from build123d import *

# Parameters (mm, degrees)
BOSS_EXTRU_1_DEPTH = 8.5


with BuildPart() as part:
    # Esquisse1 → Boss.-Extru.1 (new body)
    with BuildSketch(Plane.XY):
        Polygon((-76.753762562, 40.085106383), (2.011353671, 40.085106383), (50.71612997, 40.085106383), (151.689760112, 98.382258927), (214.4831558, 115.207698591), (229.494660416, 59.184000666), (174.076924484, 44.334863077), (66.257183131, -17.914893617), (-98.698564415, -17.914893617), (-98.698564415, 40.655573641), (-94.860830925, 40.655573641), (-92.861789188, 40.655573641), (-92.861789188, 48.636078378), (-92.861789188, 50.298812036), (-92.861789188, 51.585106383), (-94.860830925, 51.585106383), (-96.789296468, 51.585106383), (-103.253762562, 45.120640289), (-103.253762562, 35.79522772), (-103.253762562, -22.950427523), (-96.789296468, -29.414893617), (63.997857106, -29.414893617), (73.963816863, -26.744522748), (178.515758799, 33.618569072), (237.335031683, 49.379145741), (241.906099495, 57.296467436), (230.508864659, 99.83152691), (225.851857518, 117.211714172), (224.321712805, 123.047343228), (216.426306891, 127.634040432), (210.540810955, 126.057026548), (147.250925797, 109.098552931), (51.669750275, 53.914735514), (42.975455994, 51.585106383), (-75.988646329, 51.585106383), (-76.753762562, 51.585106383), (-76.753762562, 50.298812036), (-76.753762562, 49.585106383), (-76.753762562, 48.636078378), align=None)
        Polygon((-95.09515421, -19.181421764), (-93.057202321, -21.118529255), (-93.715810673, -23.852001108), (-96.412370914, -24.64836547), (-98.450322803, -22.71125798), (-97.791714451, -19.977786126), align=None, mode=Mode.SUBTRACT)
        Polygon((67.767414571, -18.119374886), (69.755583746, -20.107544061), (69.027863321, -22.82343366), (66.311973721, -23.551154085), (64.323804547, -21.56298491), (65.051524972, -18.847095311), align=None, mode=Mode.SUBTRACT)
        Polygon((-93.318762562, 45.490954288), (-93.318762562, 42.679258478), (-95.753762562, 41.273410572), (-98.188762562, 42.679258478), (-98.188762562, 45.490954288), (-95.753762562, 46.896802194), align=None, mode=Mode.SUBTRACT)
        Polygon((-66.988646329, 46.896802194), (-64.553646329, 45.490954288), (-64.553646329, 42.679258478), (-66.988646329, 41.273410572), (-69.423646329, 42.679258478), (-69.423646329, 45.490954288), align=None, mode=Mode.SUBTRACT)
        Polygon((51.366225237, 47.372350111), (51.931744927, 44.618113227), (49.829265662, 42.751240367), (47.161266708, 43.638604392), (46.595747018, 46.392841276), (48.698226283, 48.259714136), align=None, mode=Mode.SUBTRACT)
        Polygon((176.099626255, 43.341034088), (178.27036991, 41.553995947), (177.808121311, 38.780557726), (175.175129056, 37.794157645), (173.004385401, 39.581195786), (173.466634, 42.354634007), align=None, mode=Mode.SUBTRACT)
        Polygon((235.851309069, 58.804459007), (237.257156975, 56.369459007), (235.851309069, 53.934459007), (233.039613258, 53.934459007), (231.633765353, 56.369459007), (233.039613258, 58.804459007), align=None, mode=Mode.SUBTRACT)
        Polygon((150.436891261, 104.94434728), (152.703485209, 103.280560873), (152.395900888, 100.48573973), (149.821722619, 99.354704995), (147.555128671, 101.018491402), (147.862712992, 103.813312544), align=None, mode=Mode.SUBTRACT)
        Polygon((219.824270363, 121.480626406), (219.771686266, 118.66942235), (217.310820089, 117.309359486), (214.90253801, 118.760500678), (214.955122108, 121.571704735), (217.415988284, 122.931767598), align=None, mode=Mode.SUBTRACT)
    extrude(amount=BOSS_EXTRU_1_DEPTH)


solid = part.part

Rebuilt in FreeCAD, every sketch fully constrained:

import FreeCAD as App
import Part
import Sketcher

V = App.Vector
Q = App.Units.Quantity

doc = App.newDocument("Part")
body = doc.addObject("PartDesign::Body", "Body")

# Sketch on XY plane
sketch1 = doc.addObject("Sketcher::SketchObject", "Sketch")
body.addObject(sketch1)
sketch1.AttachmentSupport = (doc.XY_Plane, [""])
sketch1.MapMode = "FlatFace"
sketch1.addGeometry([
    Part.LineSegment(V(-76.753763, 40.085106, 0), V(50.71613, 40.085106, 0)),  # 0
    Part.LineSegment(V(50.71613, 40.085106, 0), V(151.68976, 98.382259, 0)),  # 1
    Part.LineSegment(V(151.68976, 98.382259, 0), V(214.483156, 115.207699, 0)),  # 2
    Part.LineSegment(V(214.483156, 115.207699, 0), V(229.49466, 59.184001, 0)),  # 3
    Part.LineSegment(V(229.49466, 59.184001, 0), V(174.076924, 44.334863, 0)),  # 4
    Part.LineSegment(V(174.076924, 44.334863, 0), V(66.257183, -17.914894, 0)),  # 5
    Part.LineSegment(V(66.257183, -17.914894, 0), V(-98.698564, -17.914894, 0)),  # 6
    Part.LineSegment(V(-98.698564, -17.914894, 0), V(-98.698564, 40.655574, 0)),  # 7
    Part.LineSegment(V(-98.698564, 40.655574, 0), V(-92.861789, 40.655574, 0)),  # 8
    Part.LineSegment(V(-92.861789, 40.655574, 0), V(-92.861789, 51.585106, 0)),  # 9
    Part.LineSegment(V(-92.861789, 51.585106, 0), V(-96.789296, 51.585106, 0)),  # 10
    Part.LineSegment(V(-96.789296, 51.585106, 0), V(-103.253763, 45.12064, 0)),  # 11
    Part.LineSegment(V(-103.253763, 45.12064, 0), V(-103.253763, -22.950428, 0)),  # 12
    Part.LineSegment(V(-103.253763, -22.950428, 0), V(-96.789296, -29.414894, 0)),  # 13
    Part.LineSegment(V(-96.789296, -29.414894, 0), V(63.997857, -29.414894, 0)),  # 14
    Part.LineSegment(V(63.997857, -29.414894, 0), V(73.963817, -26.744523, 0)),  # 15
    Part.LineSegment(V(73.963817, -26.744523, 0), V(178.515759, 33.618569, 0)),  # 16
    Part.LineSegment(V(178.515759, 33.618569, 0), V(237.335032, 49.379146, 0)),  # 17
    Part.LineSegment(V(237.335032, 49.379146, 0), V(241.906099, 57.296467, 0)),  # 18
    Part.LineSegment(V(241.906099, 57.296467, 0), V(230.508865, 99.831527, 0)),  # 19
    Part.LineSegment(V(230.508865, 99.831527, 0), V(225.851858, 117.211714, 0)),  # 20
    Part.LineSegment(V(225.851858, 117.211714, 0), V(224.321713, 123.047343, 0)),  # 21
    Part.LineSegment(V(224.321713, 123.047343, 0), V(216.426307, 127.63404, 0)),  # 22
    Part.LineSegment(V(216.426307, 127.63404, 0), V(210.540811, 126.057027, 0)),  # 23
    Part.LineSegment(V(210.540811, 126.057027, 0), V(147.250926, 109.098553, 0)),  # 24
    Part.LineSegment(V(147.250926, 109.098553, 0), V(51.66975, 53.914736, 0)),  # 25
    Part.LineSegment(V(51.66975, 53.914736, 0), V(42.975456, 51.585106, 0)),  # 26
    Part.LineSegment(V(42.975456, 51.585106, 0), V(-76.753763, 51.585106, 0)),  # 27
    Part.LineSegment(V(-76.753763, 51.585106, 0), V(-76.753763, 40.085106, 0)),  # 28
    Part.LineSegment(V(-97.791714, -19.977786, 0), V(-95.095154, -19.181422, 0)),  # 29
    Part.LineSegment(V(-95.095154, -19.181422, 0), V(-93.057202, -21.118529, 0)),  # 30
    Part.LineSegment(V(-93.057202, -21.118529, 0), V(-93.715811, -23.852001, 0)),  # 31
    Part.LineSegment(V(-93.715811, -23.852001, 0), V(-96.412371, -24.648365, 0)),  # 32
    Part.LineSegment(V(-96.412371, -24.648365, 0), V(-98.450323, -22.711258, 0)),  # 33
    Part.LineSegment(V(-98.450323, -22.711258, 0), V(-97.791714, -19.977786, 0)),  # 34
    Part.LineSegment(V(65.051525, -18.847095, 0), V(67.767415, -18.119375, 0)),  # 35
    Part.LineSegment(V(67.767415, -18.119375, 0), V(69.755584, -20.107544, 0)),  # 36
    Part.LineSegment(V(69.755584, -20.107544, 0), V(69.027863, -22.823434, 0)),  # 37
    Part.LineSegment(V(69.027863, -22.823434, 0), V(66.311974, -23.551154, 0)),  # 38
    Part.LineSegment(V(66.311974, -23.551154, 0), V(64.323805, -21.562985, 0)),  # 39
    Part.LineSegment(V(64.323805, -21.562985, 0), V(65.051525, -18.847095, 0)),  # 40
    Part.LineSegment(V(-95.753763, 46.896802, 0), V(-93.318763, 45.490954, 0)),  # 41
    Part.LineSegment(V(-93.318763, 45.490954, 0), V(-93.318763, 42.679258, 0)),  # 42
    Part.LineSegment(V(-93.318763, 42.679258, 0), V(-95.753763, 41.273411, 0)),  # 43
    Part.LineSegment(V(-95.753763, 41.273411, 0), V(-98.188763, 42.679258, 0)),  # 44
    Part.LineSegment(V(-98.188763, 42.679258, 0), V(-98.188763, 45.490954, 0)),  # 45
    Part.LineSegment(V(-98.188763, 45.490954, 0), V(-95.753763, 46.896802, 0)),  # 46
    Part.LineSegment(V(-69.423646, 45.490954, 0), V(-66.988646, 46.896802, 0)),  # 47
    Part.LineSegment(V(-66.988646, 46.896802, 0), V(-64.553646, 45.490954, 0)),  # 48
    Part.LineSegment(V(-64.553646, 45.490954, 0), V(-64.553646, 42.679258, 0)),  # 49
    Part.LineSegment(V(-64.553646, 42.679258, 0), V(-66.988646, 41.273411, 0)),  # 50
    Part.LineSegment(V(-66.988646, 41.273411, 0), V(-69.423646, 42.679258, 0)),  # 51
    Part.LineSegment(V(-69.423646, 42.679258, 0), V(-69.423646, 45.490954, 0)),  # 52
    Part.LineSegment(V(48.698226, 48.259714, 0), V(51.366225, 47.37235, 0)),  # 53
    Part.LineSegment(V(51.366225, 47.37235, 0), V(51.931745, 44.618113, 0)),  # 54
    Part.LineSegment(V(51.931745, 44.618113, 0), V(49.829266, 42.75124, 0)),  # 55
    Part.LineSegment(V(49.829266, 42.75124, 0), V(47.161267, 43.638604, 0)),  # 56
    Part.LineSegment(V(47.161267, 43.638604, 0), V(46.595747, 46.392841, 0)),  # 57
    Part.LineSegment(V(46.595747, 46.392841, 0), V(48.698226, 48.259714, 0)),  # 58
    Part.LineSegment(V(173.466634, 42.354634, 0), V(176.099626, 43.341034, 0)),  # 59
    Part.LineSegment(V(176.099626, 43.341034, 0), V(178.27037, 41.553996, 0)),  # 60
    Part.LineSegment(V(178.27037, 41.553996, 0), V(177.808121, 38.780558, 0)),  # 61
    Part.LineSegment(V(177.808121, 38.780558, 0), V(175.175129, 37.794158, 0)),  # 62
    Part.LineSegment(V(175.175129, 37.794158, 0), V(173.004385, 39.581196, 0)),  # 63
    Part.LineSegment(V(173.004385, 39.581196, 0), V(173.466634, 42.354634, 0)),  # 64
    Part.LineSegment(V(233.039613, 58.804459, 0), V(235.851309, 58.804459, 0)),  # 65
    Part.LineSegment(V(235.851309, 58.804459, 0), V(237.257157, 56.369459, 0)),  # 66
    Part.LineSegment(V(237.257157, 56.369459, 0), V(235.851309, 53.934459, 0)),  # 67
    Part.LineSegment(V(235.851309, 53.934459, 0), V(233.039613, 53.934459, 0)),  # 68
    Part.LineSegment(V(233.039613, 53.934459, 0), V(231.633765, 56.369459, 0)),  # 69
    Part.LineSegment(V(231.633765, 56.369459, 0), V(233.039613, 58.804459, 0)),  # 70
    Part.LineSegment(V(147.862713, 103.813313, 0), V(150.436891, 104.944347, 0)),  # 71
    Part.LineSegment(V(150.436891, 104.944347, 0), V(152.703485, 103.280561, 0)),  # 72
    Part.LineSegment(V(152.703485, 103.280561, 0), V(152.395901, 100.48574, 0)),  # 73
    Part.LineSegment(V(152.395901, 100.48574, 0), V(149.821723, 99.354705, 0)),  # 74
    Part.LineSegment(V(149.821723, 99.354705, 0), V(147.555129, 101.018491, 0)),  # 75
    Part.LineSegment(V(147.555129, 101.018491, 0), V(147.862713, 103.813313, 0)),  # 76
    Part.LineSegment(V(217.415988, 122.931768, 0), V(219.82427, 121.480626, 0)),  # 77
    Part.LineSegment(V(219.82427, 121.480626, 0), V(219.771686, 118.669422, 0)),  # 78
    Part.LineSegment(V(219.771686, 118.669422, 0), V(217.31082, 117.309359, 0)),  # 79
    Part.LineSegment(V(217.31082, 117.309359, 0), V(214.902538, 118.760501, 0)),  # 80
    Part.LineSegment(V(214.902538, 118.760501, 0), V(214.955122, 121.571705, 0)),  # 81
    Part.LineSegment(V(214.955122, 121.571705, 0), V(217.415988, 122.931768, 0)),  # 82
], False)
sketch1.addConstraint([
    Sketcher.Constraint("Coincident", 0, 2, 1, 1),
    Sketcher.Constraint("Coincident", 1, 2, 2, 1),
    Sketcher.Constraint("Coincident", 2, 2, 3, 1),
    Sketcher.Constraint("Coincident", 3, 2, 4, 1),
    Sketcher.Constraint("Coincident", 4, 2, 5, 1),
    Sketcher.Constraint("Coincident", 5, 2, 6, 1),
    Sketcher.Constraint("Coincident", 6, 2, 7, 1),
    Sketcher.Constraint("Coincident", 7, 2, 8, 1),
    Sketcher.Constraint("Coincident", 8, 2, 9, 1),
    Sketcher.Constraint("Coincident", 9, 2, 10, 1),
    Sketcher.Constraint("Coincident", 10, 2, 11, 1),
    Sketcher.Constraint("Coincident", 11, 2, 12, 1),
    Sketcher.Constraint("Coincident", 12, 2, 13, 1),
    Sketcher.Constraint("Coincident", 13, 2, 14, 1),
    Sketcher.Constraint("Coincident", 14, 2, 15, 1),
    Sketcher.Constraint("Coincident", 15, 2, 16, 1),
    Sketcher.Constraint("Coincident", 16, 2, 17, 1),
    Sketcher.Constraint("Coincident", 17, 2, 18, 1),
    Sketcher.Constraint("Coincident", 18, 2, 19, 1),
    Sketcher.Constraint("Coincident", 19, 2, 20, 1),
    Sketcher.Constraint("Coincident", 20, 2, 21, 1),
    Sketcher.Constraint("Coincident", 21, 2, 22, 1),
    Sketcher.Constraint("Coincident", 22, 2, 23, 1),
    Sketcher.Constraint("Coincident", 23, 2, 24, 1),
    Sketcher.Constraint("Coincident", 24, 2, 25, 1),
    Sketcher.Constraint("Coincident", 25, 2, 26, 1),
    Sketcher.Constraint("Coincident", 26, 2, 27, 1),
    Sketcher.Constraint("Coincident", 27, 2, 28, 1),
    Sketcher.Constraint("Coincident", 28, 2, 0, 1),
    Sketcher.Constraint("Coincident", 29, 2, 30, 1),
    Sketcher.Constraint("Coincident", 30, 2, 31, 1),
    Sketcher.Constraint("Coincident", 31, 2, 32, 1),
    Sketcher.Constraint("Coincident", 32, 2, 33, 1),
    Sketcher.Constraint("Coincident", 33, 2, 34, 1),
    Sketcher.Constraint("Coincident", 34, 2, 29, 1),
    Sketcher.Constraint("Coincident", 35, 2, 36, 1),
    Sketcher.Constraint("Coincident", 36, 2, 37, 1),
    Sketcher.Constraint("Coincident", 37, 2, 38, 1),
    Sketcher.Constraint("Coincident", 38, 2, 39, 1),
    Sketcher.Constraint("Coincident", 39, 2, 40, 1),
    Sketcher.Constraint("Coincident", 40, 2, 35, 1),
    Sketcher.Constraint("Coincident", 41, 2, 42, 1),
    Sketcher.Constraint("Coincident", 42, 2, 43, 1),
    Sketcher.Constraint("Coincident", 43, 2, 44, 1),
    Sketcher.Constraint("Coincident", 44, 2, 45, 1),
    Sketcher.Constraint("Coincident", 45, 2, 46, 1),
    Sketcher.Constraint("Coincident", 46, 2, 41, 1),
    Sketcher.Constraint("Coincident", 47, 2, 48, 1),
    Sketcher.Constraint("Coincident", 48, 2, 49, 1),
    Sketcher.Constraint("Coincident", 49, 2, 50, 1),
    Sketcher.Constraint("Coincident", 50, 2, 51, 1),
    Sketcher.Constraint("Coincident", 51, 2, 52, 1),
    Sketcher.Constraint("Coincident", 52, 2, 47, 1),
    Sketcher.Constraint("Coincident", 53, 2, 54, 1),
    Sketcher.Constraint("Coincident", 54, 2, 55, 1),
    Sketcher.Constraint("Coincident", 55, 2, 56, 1),
    Sketcher.Constraint("Coincident", 56, 2, 57, 1),
    Sketcher.Constraint("Coincident", 57, 2, 58, 1),
    Sketcher.Constraint("Coincident", 58, 2, 53, 1),
    Sketcher.Constraint("Coincident", 59, 2, 60, 1),
    Sketcher.Constraint("Coincident", 60, 2, 61, 1),
    Sketcher.Constraint("Coincident", 61, 2, 62, 1),
    Sketcher.Constraint("Coincident", 62, 2, 63, 1),
    Sketcher.Constraint("Coincident", 63, 2, 64, 1),
    Sketcher.Constraint("Coincident", 64, 2, 59, 1),
    Sketcher.Constraint("Coincident", 65, 2, 66, 1),
    Sketcher.Constraint("Coincident", 66, 2, 67, 1),
    Sketcher.Constraint("Coincident", 67, 2, 68, 1),
    Sketcher.Constraint("Coincident", 68, 2, 69, 1),
    Sketcher.Constraint("Coincident", 69, 2, 70, 1),
    Sketcher.Constraint("Coincident", 70, 2, 65, 1),
    Sketcher.Constraint("Coincident", 71, 2, 72, 1),
    Sketcher.Constraint("Coincident", 72, 2, 73, 1),
    Sketcher.Constraint("Coincident", 73, 2, 74, 1),
    Sketcher.Constraint("Coincident", 74, 2, 75, 1),
    Sketcher.Constraint("Coincident", 75, 2, 76, 1),
    Sketcher.Constraint("Coincident", 76, 2, 71, 1),
    Sketcher.Constraint("Coincident", 77, 2, 78, 1),
    Sketcher.Constraint("Coincident", 78, 2, 79, 1),
    Sketcher.Constraint("Coincident", 79, 2, 80, 1),
    Sketcher.Constraint("Coincident", 80, 2, 81, 1),
    Sketcher.Constraint("Coincident", 81, 2, 82, 1),
    Sketcher.Constraint("Coincident", 82, 2, 77, 1),
    Sketcher.Constraint("Horizontal", 0),
    Sketcher.Constraint("Horizontal", 6),
    Sketcher.Constraint("Vertical", 7),
    Sketcher.Constraint("Horizontal", 8),
    Sketcher.Constraint("Vertical", 9),
    Sketcher.Constraint("Horizontal", 10),
    Sketcher.Constraint("Vertical", 12),
    Sketcher.Constraint("Horizontal", 14),
    Sketcher.Constraint("Horizontal", 27),
    Sketcher.Constraint("Vertical", 28),
    Sketcher.Constraint("Vertical", 42),
    Sketcher.Constraint("Vertical", 45),
    Sketcher.Constraint("Vertical", 49),
    Sketcher.Constraint("Vertical", 52),
    Sketcher.Constraint("Horizontal", 65),
    Sketcher.Constraint("Horizontal", 68),
    Sketcher.Constraint("Distance", 3, Q("58 mm")),
    Sketcher.Constraint("DistanceY", 28, 2, 28, 1, Q("11.5 mm")),
    Sketcher.Constraint("DistanceY", -1, 1, 3, 2, Q("59.184001 mm")),
    Sketcher.Constraint("DistanceY", 31, 2, -1, 1, Q("23.852001 mm")),
    Sketcher.Constraint("DistanceX", 27, 2, 27, 1, Q("119.729219 mm")),
    Sketcher.Constraint("DistanceY", -1, 1, 2, 2, Q("115.207699 mm")),
    Sketcher.Constraint("DistanceX", -1, 1, 18, 2, Q("241.906099 mm")),
    Sketcher.Constraint("DistanceX", -1, 1, 73, 2, Q("152.395901 mm")),
    Sketcher.Constraint("DistanceY", -1, 1, 80, 2, Q("118.760501 mm")),
    Sketcher.Constraint("Distance", 4, Q("57.372662 mm")),
    Sketcher.Constraint("Distance", 15, Q("10.317521 mm")),
    Sketcher.Constraint("Distance", 24, Q("65.522511 mm")),
    Sketcher.Constraint("DistanceX", 0, 1, 0, 2, Q("127.469893 mm")),
    Sketcher.Constraint("DistanceX", 6, 2, 6, 1, Q("164.955748 mm")),
    Sketcher.Constraint("DistanceX", 8, 1, 8, 2, Q("5.836775 mm")),
    Sketcher.Constraint("DistanceX", 10, 2, 10, 1, Q("3.927507 mm")),
    Sketcher.Constraint("DistanceX", 14, 1, 14, 2, Q("160.787154 mm")),
    Sketcher.Constraint("DistanceX", 65, 1, 65, 2, Q("2.811696 mm")),
    Sketcher.Constraint("DistanceX", 68, 2, 68, 1, Q("2.811696 mm")),
    Sketcher.Constraint("DistanceY", 7, 1, 7, 2, Q("58.570467 mm")),
    Sketcher.Constraint("DistanceY", 9, 1, 9, 2, Q("10.929533 mm")),
    Sketcher.Constraint("DistanceY", 12, 2, 12, 1, Q("68.071068 mm")),
    Sketcher.Constraint("DistanceY", 42, 2, 42, 1, Q("2.811696 mm")),
    Sketcher.Constraint("DistanceY", 45, 1, 45, 2, Q("2.811696 mm")),
    Sketcher.Constraint("DistanceY", 49, 2, 49, 1, Q("2.811696 mm")),
    Sketcher.Constraint("DistanceY", 52, 1, 52, 2, Q("2.811696 mm")),
    Sketcher.Constraint("DistanceX", -1, 1, 0, 2, Q("50.71613 mm")),
    Sketcher.Constraint("DistanceX", -1, 1, 1, 2, Q("151.68976 mm")),
    Sketcher.Constraint("DistanceY", -1, 1, 1, 2, Q("98.382259 mm")),
    Sketcher.Constraint("DistanceX", -1, 1, 3, 2, Q("229.49466 mm")),
    Sketcher.Constraint("DistanceX", 8, 2, -1, 1, Q("92.861789 mm")),
    Sketcher.Constraint("DistanceY", -1, 1, 11, 2, Q("45.12064 mm")),
    Sketcher.Constraint("DistanceX", -1, 1, 16, 2, Q("178.515759 mm")),
    Sketcher.Constraint("DistanceY", -1, 1, 16, 2, Q("33.618569 mm")),
    Sketcher.Constraint("DistanceX", -1, 1, 17, 2, Q("237.335032 mm")),
    Sketcher.Constraint("DistanceY", -1, 1, 22, 2, Q("127.63404 mm")),
    Sketcher.Constraint("DistanceX", -1, 1, 23, 2, Q("210.540811 mm")),
    Sketcher.Constraint("DistanceX", -1, 1, 25, 2, Q("51.66975 mm")),
    Sketcher.Constraint("DistanceY", 29, 2, -1, 1, Q("19.181422 mm")),
    Sketcher.Constraint("DistanceY", 30, 2, -1, 1, Q("21.118529 mm")),
    Sketcher.Constraint("DistanceX", 31, 2, -1, 1, Q("93.715811 mm")),
    Sketcher.Constraint("DistanceX", 32, 2, -1, 1, Q("96.412371 mm")),
    Sketcher.Constraint("DistanceY", -1, 1, 42, 2, Q("42.679258 mm")),
    Sketcher.Constraint("DistanceY", -1, 1, 43, 2, Q("41.273411 mm")),
    Sketcher.Constraint("DistanceY", -1, 1, 44, 2, Q("42.679258 mm")),
    Sketcher.Constraint("DistanceY", -1, 1, 49, 2, Q("42.679258 mm")),
    Sketcher.Constraint("DistanceY", -1, 1, 50, 2, Q("41.273411 mm")),
    Sketcher.Constraint("DistanceY", -1, 1, 51, 2, Q("42.679258 mm")),
    Sketcher.Constraint("DistanceY", -1, 1, 53, 2, Q("47.37235 mm")),
    Sketcher.Constraint("DistanceY", -1, 1, 55, 2, Q("42.75124 mm")),
    Sketcher.Constraint("DistanceY", -1, 1, 57, 2, Q("46.392841 mm")),
    Sketcher.Constraint("DistanceX", -1, 1, 60, 2, Q("178.27037 mm")),
    Sketcher.Constraint("DistanceX", -1, 1, 61, 2, Q("177.808121 mm")),
    Sketcher.Constraint("DistanceX", -1, 1, 62, 2, Q("175.175129 mm")),
    Sketcher.Constraint("DistanceX", -1, 1, 65, 2, Q("235.851309 mm")),
    Sketcher.Constraint("DistanceY", -1, 1, 65, 2, Q("58.804459 mm")),
    Sketcher.Constraint("DistanceY", -1, 1, 66, 2, Q("56.369459 mm")),
    Sketcher.Constraint("DistanceX", -1, 1, 67, 2, Q("235.851309 mm")),
    Sketcher.Constraint("DistanceY", -1, 1, 67, 2, Q("53.934459 mm")),
    Sketcher.Constraint("DistanceY", -1, 1, 69, 2, Q("56.369459 mm")),
    Sketcher.Constraint("DistanceX", -1, 1, 71, 2, Q("150.436891 mm")),
    Sketcher.Constraint("DistanceY", -1, 1, 72, 2, Q("103.280561 mm")),
    Sketcher.Constraint("DistanceY", -1, 1, 73, 2, Q("100.48574 mm")),
    Sketcher.Constraint("DistanceX", -1, 1, 75, 2, Q("147.555129 mm")),
    Sketcher.Constraint("DistanceY", -1, 1, 75, 2, Q("101.018491 mm")),
    Sketcher.Constraint("DistanceX", -1, 1, 77, 2, Q("219.82427 mm")),
    Sketcher.Constraint("DistanceX", -1, 1, 79, 2, Q("217.31082 mm")),
    Sketcher.Constraint("DistanceY", -1, 1, 79, 2, Q("117.309359 mm")),
    Sketcher.Constraint("DistanceX", -1, 1, 80, 2, Q("214.902538 mm")),
    Sketcher.Constraint("DistanceX", -1, 1, 82, 2, Q("217.415988 mm")),
    Sketcher.Constraint("Distance", 1, Q("116.594305 mm")),
    Sketcher.Constraint("Distance", 5, Q("124.499513 mm")),
    Sketcher.Constraint("Distance", 11, Q("9.142136 mm")),
    Sketcher.Constraint("Distance", 13, Q("9.142136 mm")),
    Sketcher.Constraint("Distance", 16, Q("120.726184 mm")),
    Sketcher.Constraint("Distance", 17, Q("60.894192 mm")),
    Sketcher.Constraint("Distance", 18, Q("9.142136 mm")),
    Sketcher.Constraint("Distance", 19, Q("44.035534 mm")),
    Sketcher.Constraint("Distance", 20, Q("17.993294 mm")),
    Sketcher.Constraint("Distance", 21, Q("6.032902 mm")),
    Sketcher.Constraint("Distance", 22, Q("9.131004 mm")),
    Sketcher.Constraint("Distance", 23, Q("6.093114 mm")),
    Sketcher.Constraint("Distance", 25, Q("110.367635 mm")),
    Sketcher.Constraint("Distance", 26, Q("9.000996 mm")),
    Sketcher.Constraint("Distance", 29, Q("2.811696 mm")),
    Sketcher.Constraint("Distance", 30, Q("2.811696 mm")),
    Sketcher.Constraint("Distance", 31, Q("2.811696 mm")),
    Sketcher.Constraint("Distance", 32, Q("2.811696 mm")),
    Sketcher.Constraint("Distance", 33, Q("2.811696 mm")),
    Sketcher.Constraint("Distance", 34, Q("2.811696 mm")),
    Sketcher.Constraint("Distance", 35, Q("2.811696 mm")),
    Sketcher.Constraint("Distance", 36, Q("2.811696 mm")),
    Sketcher.Constraint("Distance", 37, Q("2.811696 mm")),
    Sketcher.Constraint("Distance", 38, Q("2.811696 mm")),
    Sketcher.Constraint("Distance", 39, Q("2.811696 mm")),
    Sketcher.Constraint("Distance", 40, Q("2.811696 mm")),
    Sketcher.Constraint("Distance", 41, Q("2.811696 mm")),
    Sketcher.Constraint("Distance", 43, Q("2.811696 mm")),
    Sketcher.Constraint("Distance", 44, Q("2.811696 mm")),
    Sketcher.Constraint("Distance", 46, Q("2.811696 mm")),
    Sketcher.Constraint("Distance", 47, Q("2.811696 mm")),
    Sketcher.Constraint("Distance", 48, Q("2.811696 mm")),
    Sketcher.Constraint("Distance", 50, Q("2.811696 mm")),
    Sketcher.Constraint("Distance", 51, Q("2.811696 mm")),
    Sketcher.Constraint("Distance", 53, Q("2.811696 mm")),
    Sketcher.Constraint("Distance", 54, Q("2.811696 mm")),
    Sketcher.Constraint("Distance", 55, Q("2.811696 mm")),
    Sketcher.Constraint("Distance", 56, Q("2.811696 mm")),
    Sketcher.Constraint("Distance", 57, Q("2.811696 mm")),
    Sketcher.Constraint("Distance", 58, Q("2.811696 mm")),
    Sketcher.Constraint("Distance", 59, Q("2.811696 mm")),
    Sketcher.Constraint("Distance", 60, Q("2.811696 mm")),
    Sketcher.Constraint("Distance", 61, Q("2.811696 mm")),
    Sketcher.Constraint("Distance", 62, Q("2.811696 mm")),
    Sketcher.Constraint("Distance", 63, Q("2.811696 mm")),
    Sketcher.Constraint("Distance", 64, Q("2.811696 mm")),
    Sketcher.Constraint("Distance", 66, Q("2.811696 mm")),
    Sketcher.Constraint("Distance", 69, Q("2.811696 mm")),
    Sketcher.Constraint("Distance", 71, Q("2.811696 mm")),
    Sketcher.Constraint("Distance", 72, Q("2.811696 mm")),
    Sketcher.Constraint("Distance", 73, Q("2.811696 mm")),
    Sketcher.Constraint("Distance", 74, Q("2.811696 mm")),
    Sketcher.Constraint("Distance", 75, Q("2.811696 mm")),
    Sketcher.Constraint("Distance", 76, Q("2.811696 mm")),
    Sketcher.Constraint("Distance", 77, Q("2.811696 mm")),
    Sketcher.Constraint("Distance", 78, Q("2.811696 mm")),
    Sketcher.Constraint("Distance", 79, Q("2.811696 mm")),
    Sketcher.Constraint("Distance", 81, Q("2.811696 mm")),
    Sketcher.Constraint("Distance", 82, Q("2.811696 mm")),
    Sketcher.Constraint("DistanceX", -1, 1, 4, 2, Q("174.076924 mm")),
    Sketcher.Constraint("DistanceX", 13, 2, -1, 1, Q("96.789296 mm")),
    Sketcher.Constraint("DistanceX", -1, 1, 19, 2, Q("230.508865 mm")),
    Sketcher.Constraint("DistanceX", -1, 1, 20, 2, Q("225.851858 mm")),
    Sketcher.Constraint("DistanceX", -1, 1, 21, 2, Q("224.321713 mm")),
    Sketcher.Constraint("DistanceX", 33, 2, -1, 1, Q("98.450323 mm")),
    Sketcher.Constraint("DistanceX", -1, 1, 35, 2, Q("67.767415 mm")),
    Sketcher.Constraint("DistanceY", 35, 2, -1, 1, Q("18.119375 mm")),
    Sketcher.Constraint("DistanceX", -1, 1, 36, 2, Q("69.755584 mm")),
    Sketcher.Constraint("DistanceX", -1, 1, 37, 2, Q("69.027863 mm")),
    Sketcher.Constraint("DistanceX", -1, 1, 38, 2, Q("66.311974 mm")),
    Sketcher.Constraint("DistanceX", -1, 1, 39, 2, Q("64.323805 mm")),
    Sketcher.Constraint("DistanceX", 41, 2, -1, 1, Q("93.318763 mm")),
    Sketcher.Constraint("DistanceX", 47, 2, -1, 1, Q("66.988646 mm")),
    Sketcher.Constraint("DistanceX", -1, 1, 53, 2, Q("51.366225 mm")),
    Sketcher.Constraint("DistanceX", -1, 1, 54, 2, Q("51.931745 mm")),
    Sketcher.Constraint("DistanceX", -1, 1, 56, 2, Q("47.161267 mm")),
    Sketcher.Constraint("DistanceX", -1, 1, 59, 2, Q("176.099626 mm")),
    Sketcher.Constraint("DistanceY", -1, 1, 59, 2, Q("43.341034 mm")),
    Sketcher.Constraint("DistanceX", -1, 1, 63, 2, Q("173.004385 mm")),
    Sketcher.Constraint("DistanceY", -1, 1, 77, 2, Q("121.480626 mm")),
])
pad1 = doc.addObject("PartDesign::Pad", "Pad")
body.addObject(pad1)
pad1.Profile = sketch1
pad1.Length = 8.5

doc.recompute()
